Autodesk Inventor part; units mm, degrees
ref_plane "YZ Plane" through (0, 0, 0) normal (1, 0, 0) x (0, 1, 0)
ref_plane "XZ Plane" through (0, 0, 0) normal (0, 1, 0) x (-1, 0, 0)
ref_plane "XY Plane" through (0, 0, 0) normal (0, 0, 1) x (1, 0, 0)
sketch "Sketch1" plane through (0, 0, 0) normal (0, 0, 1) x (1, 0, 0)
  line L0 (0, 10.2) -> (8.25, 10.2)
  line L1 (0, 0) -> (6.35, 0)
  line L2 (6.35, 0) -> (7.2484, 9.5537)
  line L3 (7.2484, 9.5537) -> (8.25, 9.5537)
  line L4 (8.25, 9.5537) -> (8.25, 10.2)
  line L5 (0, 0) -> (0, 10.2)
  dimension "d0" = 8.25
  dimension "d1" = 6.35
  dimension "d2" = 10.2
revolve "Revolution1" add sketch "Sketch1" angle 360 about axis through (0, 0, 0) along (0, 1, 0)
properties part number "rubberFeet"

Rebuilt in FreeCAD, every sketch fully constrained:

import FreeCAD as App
import Part
import Sketcher


def add_polygon(sketch, points):
    """Adds a closed chain of lines whose ends are joined by coincident constraints."""
    first, n = sketch.GeometryCount, len(points)
    for a, b in zip(points, points[1:] + points[:1]):
        sketch.addGeometry(Part.LineSegment(App.Vector(*a, 0), App.Vector(*b, 0)), False)
    for i in range(n):
        sketch.addConstraint(Sketcher.Constraint("Coincident", first + i, 2, first + (i + 1) % n, 1))

doc = App.newDocument("Part")
body = doc.addObject("PartDesign::Body", "Body")

# Sketch on XY plane
sketch1 = doc.addObject("Sketcher::SketchObject", "Sketch")
body.addObject(sketch1)
sketch1.AttachmentSupport = (doc.XY_Plane, [""])
sketch1.MapMode = "FlatFace"
add_polygon(sketch1, [(8.25, 10.2), (0, 10.2), (0, 0), (6.35, 0), (7.2484, 9.5537), (8.25, 9.5537)])  # lines 0-5
sketch1.addConstraint(Sketcher.Constraint("Horizontal", 0))
sketch1.addConstraint(Sketcher.Constraint("Vertical", 1))
sketch1.addConstraint(Sketcher.Constraint("Horizontal", 2))
sketch1.addConstraint(Sketcher.Constraint("Horizontal", 4))
sketch1.addConstraint(Sketcher.Constraint("Vertical", 5))
sketch1.addConstraint(Sketcher.Constraint("Coincident", 1, 2, -1, 1))
sketch1.addConstraint(Sketcher.Constraint("DistanceY", 1, 2, 1, 1, 10.2))
sketch1.addConstraint(Sketcher.Constraint("DistanceX", 0, 2, 0, 1, 8.25))
sketch1.addConstraint(Sketcher.Constraint("DistanceX", 2, 1, 2, 2, 6.35))
sketch1.addConstraint(Sketcher.Constraint("DistanceX", 4, 1, 4, 2, 1.0016))
sketch1.addConstraint(Sketcher.Constraint("DistanceY", 5, 1, 5, 2, 0.6463))
revolution = doc.addObject("PartDesign::Revolution", "Revolution")
body.addObject(revolution)
revolution.Profile = sketch1
revolution.ReferenceAxis = (sketch1, ["V_Axis"])
revolution.Angle = 360

doc.recompute()
